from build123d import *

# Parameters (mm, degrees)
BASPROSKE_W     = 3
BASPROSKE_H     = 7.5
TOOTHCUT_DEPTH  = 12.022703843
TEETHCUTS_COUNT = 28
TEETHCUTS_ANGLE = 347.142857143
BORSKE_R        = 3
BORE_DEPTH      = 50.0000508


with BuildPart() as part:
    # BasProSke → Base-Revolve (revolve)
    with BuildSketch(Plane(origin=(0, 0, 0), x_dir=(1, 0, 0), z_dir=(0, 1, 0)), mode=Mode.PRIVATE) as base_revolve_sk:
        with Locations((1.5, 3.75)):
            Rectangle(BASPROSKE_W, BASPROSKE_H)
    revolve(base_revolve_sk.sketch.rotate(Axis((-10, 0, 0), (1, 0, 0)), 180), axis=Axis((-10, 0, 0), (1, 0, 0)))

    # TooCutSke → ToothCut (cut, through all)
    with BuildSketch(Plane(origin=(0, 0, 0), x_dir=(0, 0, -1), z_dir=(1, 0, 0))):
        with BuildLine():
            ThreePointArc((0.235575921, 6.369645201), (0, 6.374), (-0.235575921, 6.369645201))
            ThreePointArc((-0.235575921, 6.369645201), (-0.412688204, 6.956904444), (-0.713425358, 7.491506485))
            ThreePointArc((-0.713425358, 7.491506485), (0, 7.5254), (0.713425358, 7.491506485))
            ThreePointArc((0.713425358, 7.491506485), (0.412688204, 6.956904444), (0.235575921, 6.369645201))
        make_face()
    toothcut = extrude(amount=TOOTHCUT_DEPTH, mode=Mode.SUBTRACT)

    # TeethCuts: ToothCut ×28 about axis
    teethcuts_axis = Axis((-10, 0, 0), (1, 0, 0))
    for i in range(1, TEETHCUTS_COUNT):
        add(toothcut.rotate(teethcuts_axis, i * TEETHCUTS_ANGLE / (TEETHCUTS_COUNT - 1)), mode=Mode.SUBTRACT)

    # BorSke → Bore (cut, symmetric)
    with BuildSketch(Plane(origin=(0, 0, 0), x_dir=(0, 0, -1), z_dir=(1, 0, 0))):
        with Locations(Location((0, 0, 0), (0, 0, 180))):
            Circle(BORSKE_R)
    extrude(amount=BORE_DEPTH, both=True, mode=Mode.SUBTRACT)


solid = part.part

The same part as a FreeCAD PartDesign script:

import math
import FreeCAD as App
import Part
import Sketcher
from FreeCAD import Vector


def add_polygon(sketch, points):
    """Adds a closed chain of lines whose ends are joined by coincident constraints."""
    first, n = sketch.GeometryCount, len(points)
    for a, b in zip(points, points[1:] + points[:1]):
        sketch.addGeometry(Part.LineSegment(App.Vector(*a, 0), App.Vector(*b, 0)), False)
    for i in range(n):
        sketch.addConstraint(Sketcher.Constraint("Coincident", first + i, 2, first + (i + 1) % n, 1))

doc = App.newDocument("Part")
body = doc.addObject("PartDesign::Body", "Body")

# Sketch on XZ plane
sketch1 = doc.addObject("Sketcher::SketchObject", "Sketch")
body.addObject(sketch1)
sketch1.AttachmentSupport = (doc.XZ_Plane, [""])
sketch1.MapMode = "FlatFace"
add_polygon(sketch1, [(0, -7.5), (0, 0), (3, 0), (3, -7.5)])  # lines 0-3
sketch1.addConstraint(Sketcher.Constraint("Vertical", 0))
sketch1.addConstraint(Sketcher.Constraint("Horizontal", 1))
sketch1.addConstraint(Sketcher.Constraint("Vertical", 2))
sketch1.addConstraint(Sketcher.Constraint("Horizontal", 3))
sketch1.addConstraint(Sketcher.Constraint("Coincident", 0, 2, -1, 1))
sketch1.addConstraint(Sketcher.Constraint("DistanceX", 1, 1, 1, 2, 3.0))
sketch1.addConstraint(Sketcher.Constraint("DistanceY", 0, 1, 0, 2, 7.5))
revolution = doc.addObject("PartDesign::Revolution", "Revolution")
body.addObject(revolution)
revolution.Profile = sketch1
revolution.ReferenceAxis = (sketch1, ["H_Axis"])
revolution.Angle = 360

# Sketch on YZ plane
sketch2 = doc.addObject("Sketcher::SketchObject", "Sketch001")
body.addObject(sketch2)
sketch2.AttachmentSupport = (doc.YZ_Plane, [""])
sketch2.MapMode = "FlatFace"
sketch2.addGeometry(Part.ArcOfCircle(Part.Circle(Vector(0, 0, 0), Vector(0, 0, 1), 6.37), math.radians(-2.12), math.radians(2.12)), False)
sketch2.addGeometry(Part.ArcOfCircle(Part.Circle(Vector(5.86, -2.99, 0), Vector(0, 0, 1), 2.8), math.radians(54), math.radians(80)), False)
sketch2.addGeometry(Part.ArcOfCircle(Part.Circle(Vector(0, 0, 0), Vector(0, 0, 1), 7.53), math.radians(-5.44), math.radians(5.44)), False)
sketch2.addGeometry(Part.ArcOfCircle(Part.Circle(Vector(5.86, 2.99, 0), Vector(0, 0, 1), 2.8), math.radians(-80), math.radians(-54)), False)
sketch2.addConstraint(Sketcher.Constraint("Coincident", 0, 1, 1, 2))
sketch2.addConstraint(Sketcher.Constraint("Coincident", 1, 1, 2, 1))
sketch2.addConstraint(Sketcher.Constraint("Coincident", 2, 2, 3, 2))
sketch2.addConstraint(Sketcher.Constraint("Coincident", 3, 1, 0, 2))
sketch2.addConstraint(Sketcher.Constraint("Coincident", 0, 3, -1, 1))
sketch2.addConstraint(Sketcher.Constraint("Coincident", 2, 3, -1, 1))
sketch2.addConstraint(Sketcher.Constraint("Equal", 1, 3))
sketch2.addConstraint(Sketcher.Constraint("Symmetric", 1, 3, 3, 3, -1))
sketch2.addConstraint(Sketcher.Constraint("Radius", 1, 2.8))
sketch2.addConstraint(Sketcher.Constraint("Radius", 0, 6.374))
sketch2.addConstraint(Sketcher.Constraint("Radius", 2, 7.5254))
sketch2.addConstraint(Sketcher.Constraint("DistanceY", 0, 1, 2, 2, 0.949001))
sketch2.addConstraint(Sketcher.Constraint("DistanceY", 1, 3, -1, 1, 2.988739))
pocket1 = doc.addObject("PartDesign::Pocket", "Pocket")
body.addObject(pocket1)
pocket1.Profile = sketch2
pocket1.Type = "ThroughAll"
pocket1.Reversed = True
doc.recompute()

polarpattern = doc.addObject("PartDesign::PolarPattern", "PolarPattern")
body.addObject(polarpattern)
polarpattern.Originals = [pocket1]
polarpattern.Axis = (doc.X_Axis, [""])
polarpattern.Angle = 360
polarpattern.Occurrences = 28
body.Tip = polarpattern

# Sketch on YZ plane
sketch3 = doc.addObject("Sketcher::SketchObject", "Sketch002")
body.addObject(sketch3)
sketch3.AttachmentSupport = (doc.YZ_Plane, [""])
sketch3.MapMode = "FlatFace"
sketch3.addGeometry(Part.Circle(Vector(0, 0, 0), Vector(0, 0, 1), 3), False)
sketch3.addConstraint(Sketcher.Constraint("Coincident", 0, 3, -1, 1))
sketch3.addConstraint(Sketcher.Constraint("Diameter", 0, 6.0))
pocket2 = doc.addObject("PartDesign::Pocket", "Pocket001")
body.addObject(pocket2)
pocket2.Profile = sketch3
pocket2.Length = 100.000102
pocket2.Midplane = True

doc.recompute()
